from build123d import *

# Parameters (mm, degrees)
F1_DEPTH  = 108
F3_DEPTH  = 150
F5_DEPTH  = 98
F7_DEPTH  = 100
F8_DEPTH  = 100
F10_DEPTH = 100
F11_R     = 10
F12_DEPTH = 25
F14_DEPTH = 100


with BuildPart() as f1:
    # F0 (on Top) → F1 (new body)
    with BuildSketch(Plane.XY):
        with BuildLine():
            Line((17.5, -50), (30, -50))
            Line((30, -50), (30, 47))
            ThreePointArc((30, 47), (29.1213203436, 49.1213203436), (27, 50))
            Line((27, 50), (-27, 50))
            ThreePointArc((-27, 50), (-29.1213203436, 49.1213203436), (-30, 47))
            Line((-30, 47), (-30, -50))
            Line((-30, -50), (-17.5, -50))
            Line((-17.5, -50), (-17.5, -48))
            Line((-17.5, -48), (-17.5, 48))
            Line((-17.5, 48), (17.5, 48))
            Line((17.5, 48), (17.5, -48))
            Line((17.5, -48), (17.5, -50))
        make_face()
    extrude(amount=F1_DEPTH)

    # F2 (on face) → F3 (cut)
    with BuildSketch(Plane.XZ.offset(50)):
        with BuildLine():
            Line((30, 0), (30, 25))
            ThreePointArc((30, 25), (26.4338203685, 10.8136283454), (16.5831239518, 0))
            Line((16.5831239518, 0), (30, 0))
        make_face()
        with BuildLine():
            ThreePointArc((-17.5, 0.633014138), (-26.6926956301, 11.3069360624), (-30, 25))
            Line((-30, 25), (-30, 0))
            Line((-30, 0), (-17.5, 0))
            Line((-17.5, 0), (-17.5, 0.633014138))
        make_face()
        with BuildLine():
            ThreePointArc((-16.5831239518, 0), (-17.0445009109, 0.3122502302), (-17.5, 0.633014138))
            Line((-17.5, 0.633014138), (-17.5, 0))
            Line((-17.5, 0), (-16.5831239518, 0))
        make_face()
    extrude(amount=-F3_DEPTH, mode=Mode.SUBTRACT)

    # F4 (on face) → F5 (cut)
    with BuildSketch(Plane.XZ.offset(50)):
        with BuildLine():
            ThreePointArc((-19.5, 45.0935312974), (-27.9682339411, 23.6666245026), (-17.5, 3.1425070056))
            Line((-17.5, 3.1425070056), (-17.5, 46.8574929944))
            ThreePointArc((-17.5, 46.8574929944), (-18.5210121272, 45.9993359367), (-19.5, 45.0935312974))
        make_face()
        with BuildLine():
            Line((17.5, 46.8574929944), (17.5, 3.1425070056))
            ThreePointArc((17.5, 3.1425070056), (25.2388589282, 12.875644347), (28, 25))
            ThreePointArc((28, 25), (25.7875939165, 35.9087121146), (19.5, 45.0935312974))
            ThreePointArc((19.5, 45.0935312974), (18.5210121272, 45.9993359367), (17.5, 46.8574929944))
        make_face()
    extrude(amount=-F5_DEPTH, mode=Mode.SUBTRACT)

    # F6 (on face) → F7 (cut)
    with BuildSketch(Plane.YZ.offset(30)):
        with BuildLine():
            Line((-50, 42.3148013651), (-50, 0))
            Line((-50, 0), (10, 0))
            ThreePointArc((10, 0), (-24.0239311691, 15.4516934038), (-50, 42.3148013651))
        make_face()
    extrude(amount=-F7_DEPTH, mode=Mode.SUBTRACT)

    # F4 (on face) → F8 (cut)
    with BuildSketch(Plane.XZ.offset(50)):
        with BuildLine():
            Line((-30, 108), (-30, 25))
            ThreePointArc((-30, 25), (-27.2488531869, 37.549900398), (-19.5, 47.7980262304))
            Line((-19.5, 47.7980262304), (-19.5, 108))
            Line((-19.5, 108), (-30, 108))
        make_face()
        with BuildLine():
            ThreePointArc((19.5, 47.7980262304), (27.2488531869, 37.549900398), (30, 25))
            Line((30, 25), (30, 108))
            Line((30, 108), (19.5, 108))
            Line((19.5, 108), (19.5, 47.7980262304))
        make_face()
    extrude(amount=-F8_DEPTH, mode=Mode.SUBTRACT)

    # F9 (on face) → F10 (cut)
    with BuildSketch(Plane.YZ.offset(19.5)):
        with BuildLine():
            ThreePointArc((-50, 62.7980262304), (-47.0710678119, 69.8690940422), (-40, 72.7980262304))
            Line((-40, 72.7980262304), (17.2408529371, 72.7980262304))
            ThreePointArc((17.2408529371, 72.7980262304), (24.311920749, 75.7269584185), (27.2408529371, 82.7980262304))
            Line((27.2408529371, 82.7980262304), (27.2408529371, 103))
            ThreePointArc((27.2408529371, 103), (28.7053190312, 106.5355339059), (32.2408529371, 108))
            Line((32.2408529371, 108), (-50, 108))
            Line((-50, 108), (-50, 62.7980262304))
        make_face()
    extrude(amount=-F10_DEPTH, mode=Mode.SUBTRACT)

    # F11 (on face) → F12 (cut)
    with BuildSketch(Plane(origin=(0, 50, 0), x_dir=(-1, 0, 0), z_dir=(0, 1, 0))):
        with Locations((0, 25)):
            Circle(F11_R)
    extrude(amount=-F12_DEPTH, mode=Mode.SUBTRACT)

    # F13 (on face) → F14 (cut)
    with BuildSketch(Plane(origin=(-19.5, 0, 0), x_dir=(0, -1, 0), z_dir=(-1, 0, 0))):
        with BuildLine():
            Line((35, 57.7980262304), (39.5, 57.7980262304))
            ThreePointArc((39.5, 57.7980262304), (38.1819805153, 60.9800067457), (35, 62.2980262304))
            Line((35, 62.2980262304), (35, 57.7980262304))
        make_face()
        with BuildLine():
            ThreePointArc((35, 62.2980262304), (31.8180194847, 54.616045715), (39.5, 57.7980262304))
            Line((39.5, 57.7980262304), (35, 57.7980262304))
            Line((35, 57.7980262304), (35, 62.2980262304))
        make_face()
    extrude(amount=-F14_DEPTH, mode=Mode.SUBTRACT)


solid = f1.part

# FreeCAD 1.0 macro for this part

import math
import FreeCAD as App
import Part
import Sketcher

V = App.Vector

doc = App.newDocument("Part")
body = doc.addObject("PartDesign::Body", "Body")

# Sketch on XY plane
sketch1 = doc.addObject("Sketcher::SketchObject", "Sketch")
body.addObject(sketch1)
sketch1.AttachmentSupport = (doc.XY_Plane, [""])
sketch1.MapMode = "FlatFace"
sketch1.addGeometry(Part.LineSegment(V(17.5, -50, 0), V(30, -50, 0)), False)
sketch1.addGeometry(Part.LineSegment(V(30, -50, 0), V(30, 47, 0)), False)
sketch1.addGeometry(Part.ArcOfCircle(Part.Circle(V(27, 47, 0), V(0, 0, 1), 3), math.radians(0), math.radians(90)), False)
sketch1.addGeometry(Part.LineSegment(V(27, 50, 0), V(-27, 50, 0)), False)
sketch1.addGeometry(Part.ArcOfCircle(Part.Circle(V(-27, 47, 0), V(0, 0, 1), 3), math.radians(90), math.radians(180)), False)
sketch1.addGeometry(Part.LineSegment(V(-30, 47, 0), V(-30, -50, 0)), False)
sketch1.addGeometry(Part.LineSegment(V(-30, -50, 0), V(-17.5, -50, 0)), False)
sketch1.addGeometry(Part.LineSegment(V(-17.5, -50, 0), V(-17.5, 48, 0)), False)
sketch1.addGeometry(Part.LineSegment(V(-17.5, 48, 0), V(17.5, 48, 0)), False)
sketch1.addGeometry(Part.LineSegment(V(17.5, 48, 0), V(17.5, -50, 0)), False)
sketch1.addConstraint(Sketcher.Constraint("Coincident", 0, 2, 1, 1))
sketch1.addConstraint(Sketcher.Constraint("Tangent", 1, 2, 2, 1))
sketch1.addConstraint(Sketcher.Constraint("Tangent", 2, 2, 3, 1))
sketch1.addConstraint(Sketcher.Constraint("Tangent", 3, 2, 4, 1))
sketch1.addConstraint(Sketcher.Constraint("Tangent", 4, 2, 5, 1))
sketch1.addConstraint(Sketcher.Constraint("Coincident", 5, 2, 6, 1))
sketch1.addConstraint(Sketcher.Constraint("Coincident", 6, 2, 7, 1))
sketch1.addConstraint(Sketcher.Constraint("Coincident", 7, 2, 8, 1))
sketch1.addConstraint(Sketcher.Constraint("Coincident", 8, 2, 9, 1))
sketch1.addConstraint(Sketcher.Constraint("Coincident", 9, 2, 0, 1))
sketch1.addConstraint(Sketcher.Constraint("Horizontal", 0))
sketch1.addConstraint(Sketcher.Constraint("Vertical", 1))
sketch1.addConstraint(Sketcher.Constraint("Horizontal", 3))
sketch1.addConstraint(Sketcher.Constraint("Vertical", 5))
sketch1.addConstraint(Sketcher.Constraint("Horizontal", 6))
sketch1.addConstraint(Sketcher.Constraint("Vertical", 7))
sketch1.addConstraint(Sketcher.Constraint("Horizontal", 8))
sketch1.addConstraint(Sketcher.Constraint("Vertical", 9))
sketch1.addConstraint(Sketcher.Constraint("Equal", 2, 4))
sketch1.addConstraint(Sketcher.Constraint("Symmetric", 0, 2, 5, 2, -2))
sketch1.addConstraint(Sketcher.Constraint("Equal", 0, 6))
sketch1.addConstraint(Sketcher.Constraint("Radius", 2, 3.0))
sketch1.addConstraint(Sketcher.Constraint("DistanceX", 3, 2, 3, 1, 54.0))
sketch1.addConstraint(Sketcher.Constraint("DistanceX", 8, 1, 8, 2, 35.0))
sketch1.addConstraint(Sketcher.Constraint("DistanceY", 1, 1, 1, 2, 97.0))
sketch1.addConstraint(Sketcher.Constraint("DistanceY", 7, 1, 7, 2, 98.0))
sketch1.addConstraint(Sketcher.Constraint("DistanceY", -1, 1, 2, 3, 47.0))
pad1 = doc.addObject("PartDesign::Pad", "Pad")
body.addObject(pad1)
pad1.Profile = sketch1
pad1.Length = 108

# Sketch on XZ plane
sketch2 = doc.addObject("Sketcher::SketchObject", "Sketch001")
body.addObject(sketch2)
sketch2.AttachmentSupport = (doc.XZ_Plane, [""])
sketch2.MapMode = "FlatFace"
sketch2.AttachmentOffset = App.Placement(V(0, 0, 50), App.Rotation())
sketch2.addGeometry(Part.LineSegment(V(30, 0, 0), V(30, 25, 0)), False)
sketch2.addGeometry(Part.ArcOfCircle(Part.Circle(V(0, 25, 0), V(0, 0, 1), 30), math.radians(-56), math.radians(0)), False)
sketch2.addGeometry(Part.LineSegment(V(16.6, 0, 0), V(30, 0, 0)), False)
sketch2.addGeometry(Part.ArcOfCircle(Part.Circle(V(0, 25, 0), V(0, 0, 1), 30), math.radians(180), math.radians(234)), False)
sketch2.addGeometry(Part.LineSegment(V(-30, 25, 0), V(-30, 0, 0)), False)
sketch2.addGeometry(Part.LineSegment(V(-30, 0, 0), V(-16.6, 0, 0)), False)
sketch2.addGeometry(Part.ArcOfCircle(Part.Circle(V(0, 25, 0), V(0, 0, 1), 30), math.radians(-125.69), math.radians(-123.56)), False)
sketch2.addConstraint(Sketcher.Constraint("Tangent", 0, 2, 1, 2))
sketch2.addConstraint(Sketcher.Constraint("Coincident", 1, 1, 2, 1))
sketch2.addConstraint(Sketcher.Constraint("Coincident", 2, 2, 0, 1))
sketch2.addConstraint(Sketcher.Constraint("Tangent", 3, 1, 4, 1))
sketch2.addConstraint(Sketcher.Constraint("Coincident", 4, 2, 5, 1))
sketch2.addConstraint(Sketcher.Constraint("Coincident", 5, 2, 6, 2))
sketch2.addConstraint(Sketcher.Constraint("Tangent", 6, 1, 3, 2))
sketch2.addConstraint(Sketcher.Constraint("Vertical", 0))
sketch2.addConstraint(Sketcher.Constraint("Horizontal", 2))
sketch2.addConstraint(Sketcher.Constraint("Vertical", 4))
sketch2.addConstraint(Sketcher.Constraint("Horizontal", 5))
sketch2.addConstraint(Sketcher.Constraint("Coincident", 3, 3, 1, 3))
sketch2.addConstraint(Sketcher.Constraint("Equal", 1, 3))
sketch2.addConstraint(Sketcher.Constraint("Equal", 3, 6))
sketch2.addConstraint(Sketcher.Constraint("Symmetric", 2, 2, 4, 2, -1, 1))
sketch2.addConstraint(Sketcher.Constraint("PointOnObject", 1, 1, -1))
sketch2.addConstraint(Sketcher.Constraint("Radius", 1, 30.0))
sketch2.addConstraint(Sketcher.Constraint("DistanceY", 0, 1, 0, 2, 25.0))
sketch2.addConstraint(Sketcher.Constraint("DistanceX", 6, 1, -1, 1, 17.5))
pocket1 = doc.addObject("PartDesign::Pocket", "Pocket")
body.addObject(pocket1)
pocket1.Profile = sketch2
pocket1.Length = 150

# Sketch on XZ plane
sketch3 = doc.addObject("Sketcher::SketchObject", "Sketch002")
body.addObject(sketch3)
sketch3.AttachmentSupport = (doc.XZ_Plane, [""])
sketch3.MapMode = "FlatFace"
sketch3.AttachmentOffset = App.Placement(V(0, 0, 50), App.Rotation())
sketch3.addGeometry(Part.ArcOfCircle(Part.Circle(V(0, 25, 0), V(0, 0, 1), 28), math.radians(134), math.radians(231)), False)
sketch3.addGeometry(Part.LineSegment(V(-17.5, 3.1, 0), V(-17.5, 46.9, 0)), False)
sketch3.addGeometry(Part.ArcOfCircle(Part.Circle(V(0, 25, 0), V(0, 0, 1), 28), math.radians(128.68), math.radians(134.14)), False)
sketch3.addGeometry(Part.LineSegment(V(17.5, 46.9, 0), V(17.5, 3.1, 0)), False)
sketch3.addGeometry(Part.ArcOfCircle(Part.Circle(V(0, 25, 0), V(0, 0, 1), 28), math.radians(-51), math.radians(46)), False)
sketch3.addGeometry(Part.ArcOfCircle(Part.Circle(V(0, 25, 0), V(0, 0, 1), 28), math.radians(45.86), math.radians(51.32)), False)
sketch3.addConstraint(Sketcher.Constraint("Coincident", 0, 2, 1, 1))
sketch3.addConstraint(Sketcher.Constraint("Coincident", 1, 2, 2, 1))
sketch3.addConstraint(Sketcher.Constraint("Tangent", 2, 2, 0, 1))
sketch3.addConstraint(Sketcher.Constraint("Coincident", 3, 2, 4, 1))
sketch3.addConstraint(Sketcher.Constraint("Tangent", 4, 2, 5, 1))
sketch3.addConstraint(Sketcher.Constraint("Coincident", 5, 2, 3, 1))
sketch3.addConstraint(Sketcher.Constraint("Vertical", 1))
sketch3.addConstraint(Sketcher.Constraint("Vertical", 3))
sketch3.addConstraint(Sketcher.Constraint("Coincident", 4, 3, 0, 3))
sketch3.addConstraint(Sketcher.Constraint("Equal", 0, 2))
sketch3.addConstraint(Sketcher.Constraint("Equal", 2, 4))
sketch3.addConstraint(Sketcher.Constraint("Equal", 4, 5))
sketch3.addConstraint(Sketcher.Constraint("Symmetric", 0, 2, 3, 2, -2))
sketch3.addConstraint(Sketcher.Constraint("Horizontal", 2, 2, 4, 2))
sketch3.addConstraint(Sketcher.Constraint("Radius", 0, 28.0))
sketch3.addConstraint(Sketcher.Constraint("DistanceY", -1, 1, 0, 3, 25.0))
sketch3.addConstraint(Sketcher.Constraint("DistanceX", 2, 2, 1, 2, 2.0))
sketch3.addConstraint(Sketcher.Constraint("DistanceX", 0, 2, 3, 2, 35.0))
pocket2 = doc.addObject("PartDesign::Pocket", "Pocket001")
body.addObject(pocket2)
pocket2.Profile = sketch3
pocket2.Length = 98

# Sketch on YZ plane
sketch4 = doc.addObject("Sketcher::SketchObject", "Sketch003")
body.addObject(sketch4)
sketch4.AttachmentSupport = (doc.YZ_Plane, [""])
sketch4.MapMode = "FlatFace"
sketch4.AttachmentOffset = App.Placement(V(0, 0, 30), App.Rotation())
sketch4.addGeometry(Part.LineSegment(V(-50, 42, 0), V(-50, 0, 0)), False)
sketch4.addGeometry(Part.LineSegment(V(-50, 0, 0), V(10, 0, 0)), False)
sketch4.addGeometry(Part.ArcOfCircle(Part.Circle(V(34, 97, 0), V(0, 0, 1), 100), math.radians(-147), math.radians(-104)), False)
sketch4.addConstraint(Sketcher.Constraint("Coincident", 0, 2, 1, 1))
sketch4.addConstraint(Sketcher.Constraint("Coincident", 1, 2, 2, 2))
sketch4.addConstraint(Sketcher.Constraint("Coincident", 2, 1, 0, 1))
sketch4.addConstraint(Sketcher.Constraint("Vertical", 0))
sketch4.addConstraint(Sketcher.Constraint("Horizontal", 1))
sketch4.addConstraint(Sketcher.Constraint("PointOnObject", 0, 2, -1))
sketch4.addConstraint(Sketcher.Constraint("Radius", 2, 100.0))
sketch4.addConstraint(Sketcher.Constraint("DistanceX", 1, 1, 1, 2, 60.0))
sketch4.addConstraint(Sketcher.Constraint("DistanceX", 0, 2, -1, 1, 50.0))
sketch4.addConstraint(Sketcher.Constraint("DistanceY", 0, 2, 0, 1, 42.314801))
pocket3 = doc.addObject("PartDesign::Pocket", "Pocket002")
body.addObject(pocket3)
pocket3.Profile = sketch4
pocket3.Length = 100

# Sketch on XZ plane
sketch5 = doc.addObject("Sketcher::SketchObject", "Sketch004")
body.addObject(sketch5)
sketch5.AttachmentSupport = (doc.XZ_Plane, [""])
sketch5.MapMode = "FlatFace"
sketch5.AttachmentOffset = App.Placement(V(0, 0, 50), App.Rotation())
sketch5.addGeometry(Part.LineSegment(V(-30, 108, 0), V(-30, 25, 0)), False)
sketch5.addGeometry(Part.ArcOfCircle(Part.Circle(V(0, 25, 0), V(0, 0, 1), 30), math.radians(131), math.radians(180)), False)
sketch5.addGeometry(Part.LineSegment(V(-20, 48, 0), V(-20, 108, 0)), False)
sketch5.addGeometry(Part.LineSegment(V(-20, 108, 0), V(-30, 108, 0)), False)
sketch5.addGeometry(Part.ArcOfCircle(Part.Circle(V(0, 25, 0), V(0, 0, 1), 30), math.radians(0), math.radians(49)), False)
sketch5.addGeometry(Part.LineSegment(V(30, 25, 0), V(30, 108, 0)), False)
sketch5.addGeometry(Part.LineSegment(V(30, 108, 0), V(20, 108, 0)), False)
sketch5.addGeometry(Part.LineSegment(V(20, 108, 0), V(20, 48, 0)), False)
sketch5.addConstraint(Sketcher.Constraint("Tangent", 0, 2, 1, 2))
sketch5.addConstraint(Sketcher.Constraint("Coincident", 1, 1, 2, 1))
sketch5.addConstraint(Sketcher.Constraint("Coincident", 2, 2, 3, 1))
sketch5.addConstraint(Sketcher.Constraint("Coincident", 3, 2, 0, 1))
sketch5.addConstraint(Sketcher.Constraint("Tangent", 4, 1, 5, 1))
sketch5.addConstraint(Sketcher.Constraint("Coincident", 5, 2, 6, 1))
sketch5.addConstraint(Sketcher.Constraint("Coincident", 6, 2, 7, 1))
sketch5.addConstraint(Sketcher.Constraint("Coincident", 7, 2, 4, 2))
sketch5.addConstraint(Sketcher.Constraint("Vertical", 0))
sketch5.addConstraint(Sketcher.Constraint("Vertical", 2))
sketch5.addConstraint(Sketcher.Constraint("Horizontal", 3))
sketch5.addConstraint(Sketcher.Constraint("Vertical", 5))
sketch5.addConstraint(Sketcher.Constraint("Horizontal", 6))
sketch5.addConstraint(Sketcher.Constraint("Vertical", 7))
sketch5.addConstraint(Sketcher.Constraint("Coincident", 4, 3, 1, 3))
sketch5.addConstraint(Sketcher.Constraint("Equal", 1, 4))
sketch5.addConstraint(Sketcher.Constraint("Symmetric", 3, 2, 5, 2, -2))
sketch5.addConstraint(Sketcher.Constraint("Horizontal", 1, 1, 7, 2))
sketch5.addConstraint(Sketcher.Constraint("Radius", 1, 30.0))
sketch5.addConstraint(Sketcher.Constraint("DistanceY", 0, 2, 0, 1, 83.0))
sketch5.addConstraint(Sketcher.Constraint("DistanceX", 3, 2, 3, 1, 10.5))
sketch5.addConstraint(Sketcher.Constraint("DistanceY", -1, 1, 1, 3, 25.0))
pocket4 = doc.addObject("PartDesign::Pocket", "Pocket003")
body.addObject(pocket4)
pocket4.Profile = sketch5
pocket4.Length = 100

# Sketch on YZ plane
sketch6 = doc.addObject("Sketcher::SketchObject", "Sketch005")
body.addObject(sketch6)
sketch6.AttachmentSupport = (doc.YZ_Plane, [""])
sketch6.MapMode = "FlatFace"
sketch6.AttachmentOffset = App.Placement(V(0, 0, 19.5), App.Rotation())
sketch6.addGeometry(Part.ArcOfCircle(Part.Circle(V(-40, 63, 0), V(0, 0, 1), 10), math.radians(90), math.radians(180)), False)
sketch6.addGeometry(Part.LineSegment(V(-40, 73, 0), V(17, 73, 0)), False)
sketch6.addGeometry(Part.ArcOfCircle(Part.Circle(V(17, 83, 0), V(0, 0, 1), 10), math.radians(-90), math.radians(0)), False)
sketch6.addGeometry(Part.LineSegment(V(27, 83, 0), V(27, 103, 0)), False)
sketch6.addGeometry(Part.ArcOfCircle(Part.Circle(V(32, 103, 0), V(0, 0, 1), 5), math.radians(90), math.radians(180)), False)
sketch6.addGeometry(Part.LineSegment(V(32, 108, 0), V(-50, 108, 0)), False)
sketch6.addGeometry(Part.LineSegment(V(-50, 108, 0), V(-50, 63, 0)), False)
sketch6.addConstraint(Sketcher.Constraint("Tangent", 0, 1, 1, 1))
sketch6.addConstraint(Sketcher.Constraint("Tangent", 1, 2, 2, 1))
sketch6.addConstraint(Sketcher.Constraint("Tangent", 2, 2, 3, 1))
sketch6.addConstraint(Sketcher.Constraint("Tangent", 3, 2, 4, 2))
sketch6.addConstraint(Sketcher.Constraint("Tangent", 4, 1, 5, 1))
sketch6.addConstraint(Sketcher.Constraint("Coincident", 5, 2, 6, 1))
sketch6.addConstraint(Sketcher.Constraint("Tangent", 6, 2, 0, 2))
sketch6.addConstraint(Sketcher.Constraint("Horizontal", 1))
sketch6.addConstraint(Sketcher.Constraint("Vertical", 3))
sketch6.addConstraint(Sketcher.Constraint("Horizontal", 5))
sketch6.addConstraint(Sketcher.Constraint("Vertical", 6))
sketch6.addConstraint(Sketcher.Constraint("Equal", 0, 2))
sketch6.addConstraint(Sketcher.Constraint("Radius", 0, 10.0))
sketch6.addConstraint(Sketcher.Constraint("Radius", 4, 5.0))
sketch6.addConstraint(Sketcher.Constraint("DistanceX", 0, 3, -1, 1, 40.0))
sketch6.addConstraint(Sketcher.Constraint("DistanceY", -1, 1, 4, 3, 103.0))
sketch6.addConstraint(Sketcher.Constraint("DistanceX", 1, 1, 1, 2, 57.240853))
sketch6.addConstraint(Sketcher.Constraint("DistanceY", 3, 1, 3, 2, 20.201974))
pocket5 = doc.addObject("PartDesign::Pocket", "Pocket004")
body.addObject(pocket5)
pocket5.Profile = sketch6
pocket5.Length = 100

# Sketch on XZ plane
sketch7 = doc.addObject("Sketcher::SketchObject", "Sketch006")
body.addObject(sketch7)
sketch7.AttachmentSupport = (doc.XZ_Plane, [""])
sketch7.MapMode = "FlatFace"
sketch7.AttachmentOffset = App.Placement(V(0, 0, -50), App.Rotation())
sketch7.addGeometry(Part.Circle(V(0, 25, 0), V(0, 0, 1), 10), False)
sketch7.addConstraint(Sketcher.Constraint("PointOnObject", 0, 3, -2))
sketch7.addConstraint(Sketcher.Constraint("Diameter", 0, 20.0))
sketch7.addConstraint(Sketcher.Constraint("DistanceY", -1, 1, 0, 3, 25.0))
pocket6 = doc.addObject("PartDesign::Pocket", "Pocket005")
body.addObject(pocket6)
pocket6.Profile = sketch7
pocket6.Length = 25
pocket6.Reversed = True

# Sketch on YZ plane
sketch8 = doc.addObject("Sketcher::SketchObject", "Sketch007")
body.addObject(sketch8)
sketch8.AttachmentSupport = (doc.YZ_Plane, [""])
sketch8.MapMode = "FlatFace"
sketch8.AttachmentOffset = App.Placement(V(0, 0, -19.5), App.Rotation())
sketch8.addGeometry(Part.ArcOfCircle(Part.Circle(V(-35, 57.8, 0), V(0, 0, 1), 4.5), math.radians(90), math.radians(180)), False)
sketch8.addGeometry(Part.ArcOfCircle(Part.Circle(V(-35, 57.8, 0), V(0, 0, 1), 4.5), math.radians(180), math.radians(450)), False)
sketch8.addConstraint(Sketcher.Constraint("Tangent", 0, 1, 1, 2))
sketch8.addConstraint(Sketcher.Constraint("Coincident", 1, 1, 0, 2))
sketch8.addConstraint(Sketcher.Constraint("Horizontal", 0, 3, 1, 1))
sketch8.addConstraint(Sketcher.Constraint("Vertical", 1, 3, 0, 1))
sketch8.addConstraint(Sketcher.Constraint("Radius", 0, 4.5))
sketch8.addConstraint(Sketcher.Constraint("DistanceX", 0, 3, -1, 1, 35.0))
sketch8.addConstraint(Sketcher.Constraint("DistanceY", -1, 1, 0, 3, 57.798026))
pocket7 = doc.addObject("PartDesign::Pocket", "Pocket006")
body.addObject(pocket7)
pocket7.Profile = sketch8
pocket7.Length = 100
pocket7.Reversed = True

doc.recompute()
